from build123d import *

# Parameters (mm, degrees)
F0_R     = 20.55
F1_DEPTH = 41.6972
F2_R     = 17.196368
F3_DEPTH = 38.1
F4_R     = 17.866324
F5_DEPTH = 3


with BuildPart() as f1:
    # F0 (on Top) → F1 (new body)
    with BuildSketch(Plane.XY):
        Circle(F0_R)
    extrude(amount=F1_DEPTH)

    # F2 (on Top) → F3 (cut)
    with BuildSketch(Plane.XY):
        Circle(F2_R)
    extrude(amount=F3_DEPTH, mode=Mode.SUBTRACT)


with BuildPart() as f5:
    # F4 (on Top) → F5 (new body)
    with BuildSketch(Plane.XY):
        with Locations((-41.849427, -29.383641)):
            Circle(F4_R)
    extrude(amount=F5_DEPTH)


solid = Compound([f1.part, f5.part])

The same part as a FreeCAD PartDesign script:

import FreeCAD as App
import Part
import Sketcher

V = App.Vector

doc = App.newDocument("Part")
params = doc.addObject("Spreadsheet::Sheet", "Params")
for row, (alias, value) in enumerate([
    ("sketch1_diameter", "41.1 mm"),
    ("pad1_length", "41.6972 mm"),
    ("pocket1_length", "38.1 mm"),
    ("pad2_length", "3 mm"),
], start=1):
    params.set(f"A{row}", alias)
    params.set(f"B{row}", "=" + value)
    params.setAlias(f"B{row}", alias)

body = doc.addObject("PartDesign::Body", "Body")

sketch1 = doc.addObject("Sketcher::SketchObject", "Sketch")
body.addObject(sketch1)
sketch1.AttachmentSupport = (doc.XY_Plane, [""])
sketch1.MapMode = "FlatFace"
sketch1.addGeometry(Part.Circle(V(0, 0, 0), V(0, 0, 1), 21), False)
sketch1.addConstraint([
    Sketcher.Constraint("Coincident", 0, 3, -1, 1),
    Sketcher.Constraint("Diameter", 0, 41.1),
])
sketch1.setExpression("Constraints[1]", "Params.sketch1_diameter")
pad1 = doc.addObject("PartDesign::Pad", "Pad")
body.addObject(pad1)
pad1.Profile = sketch1
pad1.setExpression("Length", "Params.pad1_length")

sketch2 = doc.addObject("Sketcher::SketchObject", "Sketch001")
body.addObject(sketch2)
sketch2.AttachmentSupport = (doc.XY_Plane, [""])
sketch2.MapMode = "FlatFace"
sketch2.addGeometry(Part.Circle(V(0, 0, 0), V(0, 0, 1), 17), False)
sketch2.addConstraint([
    Sketcher.Constraint("Coincident", 0, 3, -1, 1),
    Sketcher.Constraint("Diameter", 0, 34.392736),
])
pocket1 = doc.addObject("PartDesign::Pocket", "Pocket")
body.addObject(pocket1)
pocket1.Profile = sketch2
pocket1.setExpression("Length", "Params.pocket1_length")
pocket1.Reversed = True
body2 = doc.addObject("PartDesign::Body", "Body001")

sketch3 = doc.addObject("Sketcher::SketchObject", "Sketch002")
body2.addObject(sketch3)
sketch3.AttachmentSupport = (doc.getObject("XY_Plane001"), [""])
sketch3.MapMode = "FlatFace"
sketch3.addGeometry(Part.Circle(V(-42, -29, 0), V(0, 0, 1), 18), False)
sketch3.addConstraint([
    Sketcher.Constraint("Diameter", 0, 35.732648),
    Sketcher.Constraint("DistanceY", 0, 3, -1, 1, 29.383641),
    Sketcher.Constraint("DistanceX", 0, 3, -1, 1, 41.849427),
])
pad2 = doc.addObject("PartDesign::Pad", "Pad001")
body2.addObject(pad2)
pad2.Profile = sketch3
pad2.setExpression("Length", "Params.pad2_length")

doc.recompute()
